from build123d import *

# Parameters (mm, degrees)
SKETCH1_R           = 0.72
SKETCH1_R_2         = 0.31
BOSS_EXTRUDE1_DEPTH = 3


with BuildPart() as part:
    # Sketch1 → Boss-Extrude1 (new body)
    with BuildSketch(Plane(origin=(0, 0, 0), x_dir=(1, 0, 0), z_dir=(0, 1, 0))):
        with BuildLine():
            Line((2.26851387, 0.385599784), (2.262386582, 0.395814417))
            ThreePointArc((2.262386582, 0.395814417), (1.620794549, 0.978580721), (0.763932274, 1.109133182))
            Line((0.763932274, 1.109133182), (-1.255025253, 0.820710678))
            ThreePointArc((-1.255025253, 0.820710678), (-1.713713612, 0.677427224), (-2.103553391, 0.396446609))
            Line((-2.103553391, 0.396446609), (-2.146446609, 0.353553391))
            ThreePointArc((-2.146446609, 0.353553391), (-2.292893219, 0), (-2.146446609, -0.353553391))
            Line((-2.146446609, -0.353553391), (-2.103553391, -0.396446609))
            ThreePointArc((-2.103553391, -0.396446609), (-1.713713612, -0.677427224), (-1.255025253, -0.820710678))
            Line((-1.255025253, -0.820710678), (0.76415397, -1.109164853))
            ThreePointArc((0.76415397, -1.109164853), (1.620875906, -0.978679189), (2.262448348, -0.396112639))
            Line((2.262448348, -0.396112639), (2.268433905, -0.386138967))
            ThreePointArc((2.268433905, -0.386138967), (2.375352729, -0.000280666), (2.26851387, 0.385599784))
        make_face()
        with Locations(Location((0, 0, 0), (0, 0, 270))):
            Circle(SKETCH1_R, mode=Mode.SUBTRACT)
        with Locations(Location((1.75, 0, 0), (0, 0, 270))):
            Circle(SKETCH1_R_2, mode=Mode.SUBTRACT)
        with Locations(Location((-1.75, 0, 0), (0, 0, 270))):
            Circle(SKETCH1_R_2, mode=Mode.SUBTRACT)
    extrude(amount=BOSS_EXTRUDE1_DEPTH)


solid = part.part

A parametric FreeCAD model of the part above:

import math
import FreeCAD as App
import Part
import Sketcher

V = App.Vector

doc = App.newDocument("Part")
params = doc.addObject("Spreadsheet::Sheet", "Params")
for row, (alias, value) in enumerate([
    ("sketch1_radius", "1.5 mm"),
    ("sketch1_radius2", "1.5 mm"),
    ("sketch1_radius3", "0.5 mm"),
    ("sketch1_radius4", "1.5 mm"),
    ("sketch1_radius5", "1.5 mm"),
    ("pad1_length", "3 mm"),
], start=1):
    params.set(f"A{row}", alias)
    params.set(f"B{row}", "=" + value)
    params.setAlias(f"B{row}", alias)

body = doc.addObject("PartDesign::Body", "Body")

# Sketch on XZ plane
sketch1 = body.newObject("Sketcher::SketchObject", "Sketch")
sketch1.AttachmentSupport = (doc.getObject("XZ_Plane"), [""])
sketch1.MapMode = "FlatFace"
sketch1.addGeometry([
    Part.LineSegment(V(2.268514, -0.3856, 0), V(2.262387, -0.395814, 0)),  # 0
    Part.ArcOfCircle(Part.Circle(V(0.976064, 0.375791, 0), V(0, 0, 1), 1.5), math.radians(-98.130102), math.radians(-30.957603)),  # 1
    Part.LineSegment(V(0.763932, -1.109133, 0), V(-1.255025, -0.820711, 0)),  # 2
    Part.ArcOfCircle(Part.Circle(V(-1.042893, 0.664214, 0), V(0, 0, 1), 1.5), math.radians(-135), math.radians(-98.130102)),  # 3
    Part.LineSegment(V(-2.103553, -0.396447, 0), V(-2.146447, -0.353553, 0)),  # 4
    Part.ArcOfCircle(Part.Circle(V(-1.792893, 0, 0), V(0, 0, 1), 0.5), math.radians(135), math.radians(225)),  # 5
    Part.LineSegment(V(-2.146447, 0.353553, 0), V(-2.103553, 0.396447, 0)),  # 6
    Part.ArcOfCircle(Part.Circle(V(-1.042893, -0.664214, 0), V(0, 0, 1), 1.5), math.radians(98.130102), math.radians(135)),  # 7
    Part.LineSegment(V(-1.255025, 0.820711, 0), V(0.764154, 1.109165, 0)),  # 8
    Part.ArcOfCircle(Part.Circle(V(0.976286, -0.375759, 0), V(0, 0, 1), 1.5), math.radians(30.969476), math.radians(98.130102)),  # 9
    Part.LineSegment(V(2.262448, 0.396113, 0), V(2.268434, 0.386139, 0)),  # 10
    Part.ArcOfCircle(Part.Circle(V(1.625353, 0.000203, 0), V(0, 0, 1), 0.75), math.radians(-30.957602), math.radians(30.969476)),  # 11
    Part.Circle(V(-1.75, 0, 0), V(0, 0, 1), 0.31),  # 12
    Part.Circle(V(0, 0, 0), V(0, 0, 1), 0.72),  # 13
    Part.Circle(V(1.75, 0, 0), V(0, 0, 1), 0.31),  # 14
], False)
sketch1.addConstraint([
    Sketcher.Constraint("Coincident", 0, 2, 1, 2),
    Sketcher.Constraint("Coincident", 1, 1, 2, 1),
    Sketcher.Constraint("Coincident", 2, 2, 3, 2),
    Sketcher.Constraint("Coincident", 3, 1, 4, 1),
    Sketcher.Constraint("Coincident", 4, 2, 5, 2),
    Sketcher.Constraint("Coincident", 5, 1, 6, 1),
    Sketcher.Constraint("Coincident", 6, 2, 7, 2),
    Sketcher.Constraint("Coincident", 7, 1, 8, 1),
    Sketcher.Constraint("Coincident", 8, 2, 9, 2),
    Sketcher.Constraint("Coincident", 9, 1, 10, 1),
    Sketcher.Constraint("Coincident", 10, 2, 11, 2),
    Sketcher.Constraint("Coincident", 11, 1, 0, 1),
    Sketcher.Constraint("Coincident", 13, 3, -1, 1),
    Sketcher.Constraint("PointOnObject", 5, 3, -1),
    Sketcher.Constraint("PointOnObject", 12, 3, -1),
    Sketcher.Constraint("PointOnObject", 14, 3, -1),
    Sketcher.Constraint("Radius", 1, 1.5),
    Sketcher.Constraint("Radius", 3, 1.5),
    Sketcher.Constraint("Radius", 5, 0.5),
    Sketcher.Constraint("Radius", 7, 1.5),
    Sketcher.Constraint("Radius", 9, 1.5),
    Sketcher.Constraint("Diameter", 12, 0.62),
    Sketcher.Constraint("Diameter", 13, 1.44),
    Sketcher.Constraint("Diameter", 14, 0.62),
    Sketcher.Constraint("Radius", 11, 0.75),
    Sketcher.Constraint("DistanceX", 12, 3, -1, 1, 1.75),
    Sketcher.Constraint("DistanceX", -1, 1, 14, 3, 1.75),
    Sketcher.Constraint("DistanceX", 5, 3, 3, 3, 0.75),
    Sketcher.Constraint("DistanceX", 5, 3, 7, 3, 0.75),
    Sketcher.Constraint("DistanceY", 3, 1, 5, 1, 0.75),
    Sketcher.Constraint("DistanceY", 4, 2, 6, 2, 0.75),
    Sketcher.Constraint("DistanceY", 11, 1, -1, 1, 0.3856),
    Sketcher.Constraint("DistanceX", 9, 3, 0, 2, 1.286101),
    Sketcher.Constraint("DistanceX", 8, 2, 11, 3, 0.861199),
    Sketcher.Constraint("Distance", 0, 0.011911),
    Sketcher.Constraint("Distance", 4, 0.06066),
    Sketcher.Constraint("Distance", 6, 0.06066),
    Sketcher.Constraint("Distance", 8, 2.039679),
    Sketcher.Constraint("Distance", 10, 0.011632),
    Sketcher.Constraint("DistanceY", -1, 1, 1, 3, 0.375791),
    Sketcher.Constraint("DistanceY", 9, 3, -1, 1, 0.375759),
    Sketcher.Constraint("DistanceY", 2, 2, -1, 1, 0.820711),
    Sketcher.Constraint("DistanceY", -1, 1, 7, 1, 0.820711),
    Sketcher.Constraint("DistanceX", -1, 1, 9, 1, 2.262448),
    Sketcher.Constraint("DistanceY", -1, 1, 10, 2, 0.386139),
    Sketcher.Constraint("DistanceX", 1, 3, 9, 3, 0.000222),
    Sketcher.Constraint("DistanceX", 7, 3, 9, 3, 2.019179),
    Sketcher.Constraint("DistanceX", 1, 3, 11, 3, 0.649288),
    Sketcher.Constraint("DistanceX", 1, 1, 11, 3, 0.86142),
    Sketcher.Constraint("DistanceX", 3, 1, 5, 3, 0.31066),
])
sketch1.setExpression("Constraints[16]", "Params.sketch1_radius")
sketch1.setExpression("Constraints[17]", "Params.sketch1_radius2")
sketch1.setExpression("Constraints[18]", "Params.sketch1_radius3")
sketch1.setExpression("Constraints[19]", "Params.sketch1_radius4")
sketch1.setExpression("Constraints[20]", "Params.sketch1_radius5")
pad1 = body.newObject("PartDesign::Pad", "Pad")
pad1.Profile = sketch1
pad1.setExpression("Length", "Params.pad1_length")
pad1.Reversed = True

doc.recompute()
